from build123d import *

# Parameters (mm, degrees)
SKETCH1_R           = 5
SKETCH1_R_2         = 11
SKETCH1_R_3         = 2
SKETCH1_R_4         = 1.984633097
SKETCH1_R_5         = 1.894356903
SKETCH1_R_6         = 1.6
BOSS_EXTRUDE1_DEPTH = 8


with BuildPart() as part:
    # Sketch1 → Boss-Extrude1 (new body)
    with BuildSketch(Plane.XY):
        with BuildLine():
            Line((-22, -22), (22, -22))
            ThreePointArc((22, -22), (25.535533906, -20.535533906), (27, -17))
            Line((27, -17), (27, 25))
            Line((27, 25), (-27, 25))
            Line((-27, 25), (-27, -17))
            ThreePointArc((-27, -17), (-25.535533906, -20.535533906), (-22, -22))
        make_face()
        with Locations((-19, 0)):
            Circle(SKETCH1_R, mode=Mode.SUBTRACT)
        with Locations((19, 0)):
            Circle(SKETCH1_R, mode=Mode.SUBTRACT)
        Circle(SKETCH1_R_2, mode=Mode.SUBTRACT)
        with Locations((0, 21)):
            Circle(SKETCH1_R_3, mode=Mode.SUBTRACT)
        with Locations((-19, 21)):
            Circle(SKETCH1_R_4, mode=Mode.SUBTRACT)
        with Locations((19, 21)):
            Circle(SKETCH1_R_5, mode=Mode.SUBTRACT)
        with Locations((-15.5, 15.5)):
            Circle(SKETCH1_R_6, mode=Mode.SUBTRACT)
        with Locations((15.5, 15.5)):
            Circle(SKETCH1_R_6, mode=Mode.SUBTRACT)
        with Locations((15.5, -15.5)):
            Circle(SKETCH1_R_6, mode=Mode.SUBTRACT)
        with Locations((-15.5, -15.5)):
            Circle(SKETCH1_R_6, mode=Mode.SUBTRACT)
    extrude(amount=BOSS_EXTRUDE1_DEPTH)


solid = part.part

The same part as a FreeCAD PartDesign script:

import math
import FreeCAD as App
import Part
import Sketcher

doc = App.newDocument("Part")
params = doc.addObject("Spreadsheet::Sheet", "Params")
for row, (alias, value) in enumerate([
    ("sketch1_diameter", "10 mm"),
    ("sketch1_diameter2", "22 mm"),
    ("sketch1_diameter3", "4 mm"),
    ("sketch1_diameter4", "3.2 mm"),
    ("sketch1_width", "44 mm"),
    ("pad1_length", "8 mm"),
], start=1):
    params.set(f"A{row}", alias)
    params.set(f"B{row}", "=" + value)
    params.setAlias(f"B{row}", alias)

body = doc.addObject("PartDesign::Body", "Body")

# Sketch on XY plane
sketch1 = doc.addObject("Sketcher::SketchObject", "Sketch")
body.addObject(sketch1)
sketch1.AttachmentSupport = (doc.XY_Plane, [""])
sketch1.MapMode = "FlatFace"
sketch1.addGeometry(Part.LineSegment(App.Vector(-22, -22, 0), App.Vector(22, -22, 0)), False)
sketch1.addGeometry(Part.ArcOfCircle(Part.Circle(App.Vector(22, -17, 0), App.Vector(0, 0, 1), 5), math.radians(-90), math.radians(0)), False)
sketch1.addGeometry(Part.LineSegment(App.Vector(27, -17, 0), App.Vector(27, 25, 0)), False)
sketch1.addGeometry(Part.LineSegment(App.Vector(27, 25, 0), App.Vector(-27, 25, 0)), False)
sketch1.addGeometry(Part.LineSegment(App.Vector(-27, 25, 0), App.Vector(-27, -17, 0)), False)
sketch1.addGeometry(Part.ArcOfCircle(Part.Circle(App.Vector(-22, -17, 0), App.Vector(0, 0, 1), 5), math.radians(180), math.radians(270)), False)
sketch1.addGeometry(Part.Circle(App.Vector(-15.5, -15.5, 0), App.Vector(0, 0, 1), 1.6), False)
sketch1.addGeometry(Part.Circle(App.Vector(-19, 0, 0), App.Vector(0, 0, 1), 5), False)
sketch1.addGeometry(Part.Circle(App.Vector(15.5, -15.5, 0), App.Vector(0, 0, 1), 1.6), False)
sketch1.addGeometry(Part.Circle(App.Vector(0, 0, 0), App.Vector(0, 0, 1), 11), False)
sketch1.addGeometry(Part.Circle(App.Vector(19, 0, 0), App.Vector(0, 0, 1), 5), False)
sketch1.addGeometry(Part.Circle(App.Vector(-15.5, 15.5, 0), App.Vector(0, 0, 1), 1.6), False)
sketch1.addGeometry(Part.Circle(App.Vector(-19, 21, 0), App.Vector(0, 0, 1), 2), False)
sketch1.addGeometry(Part.Circle(App.Vector(0, 21, 0), App.Vector(0, 0, 1), 2), False)
sketch1.addGeometry(Part.Circle(App.Vector(15.5, 15.5, 0), App.Vector(0, 0, 1), 1.6), False)
sketch1.addGeometry(Part.Circle(App.Vector(19, 21, 0), App.Vector(0, 0, 1), 1.9), False)
sketch1.addConstraint(Sketcher.Constraint("Tangent", 0, 2, 1, 1))
sketch1.addConstraint(Sketcher.Constraint("Tangent", 1, 2, 2, 1))
sketch1.addConstraint(Sketcher.Constraint("Coincident", 2, 2, 3, 1))
sketch1.addConstraint(Sketcher.Constraint("Coincident", 3, 2, 4, 1))
sketch1.addConstraint(Sketcher.Constraint("Tangent", 4, 2, 5, 1))
sketch1.addConstraint(Sketcher.Constraint("Tangent", 5, 2, 0, 1))
sketch1.addConstraint(Sketcher.Constraint("Horizontal", 0))
sketch1.addConstraint(Sketcher.Constraint("Vertical", 2))
sketch1.addConstraint(Sketcher.Constraint("Horizontal", 3))
sketch1.addConstraint(Sketcher.Constraint("Vertical", 4))
sketch1.addConstraint(Sketcher.Constraint("Coincident", 9, 3, -1, 1))
sketch1.addConstraint(Sketcher.Constraint("Equal", 1, 5))
sketch1.addConstraint(Sketcher.Constraint("Equal", 5, 7))
sketch1.addConstraint(Sketcher.Constraint("Equal", 6, 8))
sketch1.addConstraint(Sketcher.Constraint("Equal", 7, 10))
sketch1.addConstraint(Sketcher.Constraint("Equal", 8, 11))
sketch1.addConstraint(Sketcher.Constraint("Equal", 11, 14))
sketch1.addConstraint(Sketcher.Constraint("Symmetric", 7, 3, 10, 3, -1, 1))
sketch1.addConstraint(Sketcher.Constraint("Symmetric", 8, 3, 11, 3, -1, 1))
sketch1.addConstraint(Sketcher.Constraint("Symmetric", 6, 3, 14, 3, -1, 1))
sketch1.addConstraint(Sketcher.Constraint("Symmetric", 6, 3, 8, 3, -2))
sketch1.addConstraint(Sketcher.Constraint("Symmetric", 12, 3, 15, 3, -2))
sketch1.addConstraint(Sketcher.Constraint("PointOnObject", 7, 3, -1))
sketch1.addConstraint(Sketcher.Constraint("PointOnObject", 13, 3, -2))
sketch1.addConstraint(Sketcher.Constraint("Horizontal", 12, 3, 13, 3))
sketch1.addConstraint(Sketcher.Constraint("Vertical", 7, 3, 12, 3))
sketch1.addConstraint(Sketcher.Constraint("Diameter", 7, 10.0))
sketch1.addConstraint(Sketcher.Constraint("Diameter", 9, 22.0))
sketch1.addConstraint(Sketcher.Constraint("Diameter", 13, 4.0))
sketch1.addConstraint(Sketcher.Constraint("Diameter", 6, 3.2))
sketch1.addConstraint(Sketcher.Constraint("DistanceX", 0, 1, 0, 2, 44.0))
sketch1.addConstraint(Sketcher.Constraint("DistanceY", 2, 1, 2, 2, 42.0))
sketch1.addConstraint(Sketcher.Constraint("DistanceX", -1, 1, 1, 3, 22.0))
sketch1.addConstraint(Sketcher.Constraint("DistanceY", 1, 3, -1, 1, 17.0))
sketch1.addConstraint(Sketcher.Constraint("DistanceX", 7, 3, -1, 1, 19.0))
sketch1.addConstraint(Sketcher.Constraint("DistanceY", -1, 1, 12, 3, 21.0))
sketch1.addConstraint(Sketcher.Constraint("DistanceX", 6, 3, 8, 3, 31.0))
sketch1.addConstraint(Sketcher.Constraint("DistanceY", 6, 3, 11, 3, 31.0))
sketch1.addConstraint(Sketcher.Constraint("Diameter", 12, 3.969266))
sketch1.addConstraint(Sketcher.Constraint("Diameter", 15, 3.788714))
sketch1.setExpression("Constraints[26]", "Params.sketch1_diameter")
sketch1.setExpression("Constraints[27]", "Params.sketch1_diameter2")
sketch1.setExpression("Constraints[28]", "Params.sketch1_diameter3")
sketch1.setExpression("Constraints[29]", "Params.sketch1_diameter4")
sketch1.setExpression("Constraints[30]", "Params.sketch1_width")
pad1 = doc.addObject("PartDesign::Pad", "Pad")
body.addObject(pad1)
pad1.Profile = sketch1
pad1.setExpression("Length", "Params.pad1_length")

doc.recompute()
